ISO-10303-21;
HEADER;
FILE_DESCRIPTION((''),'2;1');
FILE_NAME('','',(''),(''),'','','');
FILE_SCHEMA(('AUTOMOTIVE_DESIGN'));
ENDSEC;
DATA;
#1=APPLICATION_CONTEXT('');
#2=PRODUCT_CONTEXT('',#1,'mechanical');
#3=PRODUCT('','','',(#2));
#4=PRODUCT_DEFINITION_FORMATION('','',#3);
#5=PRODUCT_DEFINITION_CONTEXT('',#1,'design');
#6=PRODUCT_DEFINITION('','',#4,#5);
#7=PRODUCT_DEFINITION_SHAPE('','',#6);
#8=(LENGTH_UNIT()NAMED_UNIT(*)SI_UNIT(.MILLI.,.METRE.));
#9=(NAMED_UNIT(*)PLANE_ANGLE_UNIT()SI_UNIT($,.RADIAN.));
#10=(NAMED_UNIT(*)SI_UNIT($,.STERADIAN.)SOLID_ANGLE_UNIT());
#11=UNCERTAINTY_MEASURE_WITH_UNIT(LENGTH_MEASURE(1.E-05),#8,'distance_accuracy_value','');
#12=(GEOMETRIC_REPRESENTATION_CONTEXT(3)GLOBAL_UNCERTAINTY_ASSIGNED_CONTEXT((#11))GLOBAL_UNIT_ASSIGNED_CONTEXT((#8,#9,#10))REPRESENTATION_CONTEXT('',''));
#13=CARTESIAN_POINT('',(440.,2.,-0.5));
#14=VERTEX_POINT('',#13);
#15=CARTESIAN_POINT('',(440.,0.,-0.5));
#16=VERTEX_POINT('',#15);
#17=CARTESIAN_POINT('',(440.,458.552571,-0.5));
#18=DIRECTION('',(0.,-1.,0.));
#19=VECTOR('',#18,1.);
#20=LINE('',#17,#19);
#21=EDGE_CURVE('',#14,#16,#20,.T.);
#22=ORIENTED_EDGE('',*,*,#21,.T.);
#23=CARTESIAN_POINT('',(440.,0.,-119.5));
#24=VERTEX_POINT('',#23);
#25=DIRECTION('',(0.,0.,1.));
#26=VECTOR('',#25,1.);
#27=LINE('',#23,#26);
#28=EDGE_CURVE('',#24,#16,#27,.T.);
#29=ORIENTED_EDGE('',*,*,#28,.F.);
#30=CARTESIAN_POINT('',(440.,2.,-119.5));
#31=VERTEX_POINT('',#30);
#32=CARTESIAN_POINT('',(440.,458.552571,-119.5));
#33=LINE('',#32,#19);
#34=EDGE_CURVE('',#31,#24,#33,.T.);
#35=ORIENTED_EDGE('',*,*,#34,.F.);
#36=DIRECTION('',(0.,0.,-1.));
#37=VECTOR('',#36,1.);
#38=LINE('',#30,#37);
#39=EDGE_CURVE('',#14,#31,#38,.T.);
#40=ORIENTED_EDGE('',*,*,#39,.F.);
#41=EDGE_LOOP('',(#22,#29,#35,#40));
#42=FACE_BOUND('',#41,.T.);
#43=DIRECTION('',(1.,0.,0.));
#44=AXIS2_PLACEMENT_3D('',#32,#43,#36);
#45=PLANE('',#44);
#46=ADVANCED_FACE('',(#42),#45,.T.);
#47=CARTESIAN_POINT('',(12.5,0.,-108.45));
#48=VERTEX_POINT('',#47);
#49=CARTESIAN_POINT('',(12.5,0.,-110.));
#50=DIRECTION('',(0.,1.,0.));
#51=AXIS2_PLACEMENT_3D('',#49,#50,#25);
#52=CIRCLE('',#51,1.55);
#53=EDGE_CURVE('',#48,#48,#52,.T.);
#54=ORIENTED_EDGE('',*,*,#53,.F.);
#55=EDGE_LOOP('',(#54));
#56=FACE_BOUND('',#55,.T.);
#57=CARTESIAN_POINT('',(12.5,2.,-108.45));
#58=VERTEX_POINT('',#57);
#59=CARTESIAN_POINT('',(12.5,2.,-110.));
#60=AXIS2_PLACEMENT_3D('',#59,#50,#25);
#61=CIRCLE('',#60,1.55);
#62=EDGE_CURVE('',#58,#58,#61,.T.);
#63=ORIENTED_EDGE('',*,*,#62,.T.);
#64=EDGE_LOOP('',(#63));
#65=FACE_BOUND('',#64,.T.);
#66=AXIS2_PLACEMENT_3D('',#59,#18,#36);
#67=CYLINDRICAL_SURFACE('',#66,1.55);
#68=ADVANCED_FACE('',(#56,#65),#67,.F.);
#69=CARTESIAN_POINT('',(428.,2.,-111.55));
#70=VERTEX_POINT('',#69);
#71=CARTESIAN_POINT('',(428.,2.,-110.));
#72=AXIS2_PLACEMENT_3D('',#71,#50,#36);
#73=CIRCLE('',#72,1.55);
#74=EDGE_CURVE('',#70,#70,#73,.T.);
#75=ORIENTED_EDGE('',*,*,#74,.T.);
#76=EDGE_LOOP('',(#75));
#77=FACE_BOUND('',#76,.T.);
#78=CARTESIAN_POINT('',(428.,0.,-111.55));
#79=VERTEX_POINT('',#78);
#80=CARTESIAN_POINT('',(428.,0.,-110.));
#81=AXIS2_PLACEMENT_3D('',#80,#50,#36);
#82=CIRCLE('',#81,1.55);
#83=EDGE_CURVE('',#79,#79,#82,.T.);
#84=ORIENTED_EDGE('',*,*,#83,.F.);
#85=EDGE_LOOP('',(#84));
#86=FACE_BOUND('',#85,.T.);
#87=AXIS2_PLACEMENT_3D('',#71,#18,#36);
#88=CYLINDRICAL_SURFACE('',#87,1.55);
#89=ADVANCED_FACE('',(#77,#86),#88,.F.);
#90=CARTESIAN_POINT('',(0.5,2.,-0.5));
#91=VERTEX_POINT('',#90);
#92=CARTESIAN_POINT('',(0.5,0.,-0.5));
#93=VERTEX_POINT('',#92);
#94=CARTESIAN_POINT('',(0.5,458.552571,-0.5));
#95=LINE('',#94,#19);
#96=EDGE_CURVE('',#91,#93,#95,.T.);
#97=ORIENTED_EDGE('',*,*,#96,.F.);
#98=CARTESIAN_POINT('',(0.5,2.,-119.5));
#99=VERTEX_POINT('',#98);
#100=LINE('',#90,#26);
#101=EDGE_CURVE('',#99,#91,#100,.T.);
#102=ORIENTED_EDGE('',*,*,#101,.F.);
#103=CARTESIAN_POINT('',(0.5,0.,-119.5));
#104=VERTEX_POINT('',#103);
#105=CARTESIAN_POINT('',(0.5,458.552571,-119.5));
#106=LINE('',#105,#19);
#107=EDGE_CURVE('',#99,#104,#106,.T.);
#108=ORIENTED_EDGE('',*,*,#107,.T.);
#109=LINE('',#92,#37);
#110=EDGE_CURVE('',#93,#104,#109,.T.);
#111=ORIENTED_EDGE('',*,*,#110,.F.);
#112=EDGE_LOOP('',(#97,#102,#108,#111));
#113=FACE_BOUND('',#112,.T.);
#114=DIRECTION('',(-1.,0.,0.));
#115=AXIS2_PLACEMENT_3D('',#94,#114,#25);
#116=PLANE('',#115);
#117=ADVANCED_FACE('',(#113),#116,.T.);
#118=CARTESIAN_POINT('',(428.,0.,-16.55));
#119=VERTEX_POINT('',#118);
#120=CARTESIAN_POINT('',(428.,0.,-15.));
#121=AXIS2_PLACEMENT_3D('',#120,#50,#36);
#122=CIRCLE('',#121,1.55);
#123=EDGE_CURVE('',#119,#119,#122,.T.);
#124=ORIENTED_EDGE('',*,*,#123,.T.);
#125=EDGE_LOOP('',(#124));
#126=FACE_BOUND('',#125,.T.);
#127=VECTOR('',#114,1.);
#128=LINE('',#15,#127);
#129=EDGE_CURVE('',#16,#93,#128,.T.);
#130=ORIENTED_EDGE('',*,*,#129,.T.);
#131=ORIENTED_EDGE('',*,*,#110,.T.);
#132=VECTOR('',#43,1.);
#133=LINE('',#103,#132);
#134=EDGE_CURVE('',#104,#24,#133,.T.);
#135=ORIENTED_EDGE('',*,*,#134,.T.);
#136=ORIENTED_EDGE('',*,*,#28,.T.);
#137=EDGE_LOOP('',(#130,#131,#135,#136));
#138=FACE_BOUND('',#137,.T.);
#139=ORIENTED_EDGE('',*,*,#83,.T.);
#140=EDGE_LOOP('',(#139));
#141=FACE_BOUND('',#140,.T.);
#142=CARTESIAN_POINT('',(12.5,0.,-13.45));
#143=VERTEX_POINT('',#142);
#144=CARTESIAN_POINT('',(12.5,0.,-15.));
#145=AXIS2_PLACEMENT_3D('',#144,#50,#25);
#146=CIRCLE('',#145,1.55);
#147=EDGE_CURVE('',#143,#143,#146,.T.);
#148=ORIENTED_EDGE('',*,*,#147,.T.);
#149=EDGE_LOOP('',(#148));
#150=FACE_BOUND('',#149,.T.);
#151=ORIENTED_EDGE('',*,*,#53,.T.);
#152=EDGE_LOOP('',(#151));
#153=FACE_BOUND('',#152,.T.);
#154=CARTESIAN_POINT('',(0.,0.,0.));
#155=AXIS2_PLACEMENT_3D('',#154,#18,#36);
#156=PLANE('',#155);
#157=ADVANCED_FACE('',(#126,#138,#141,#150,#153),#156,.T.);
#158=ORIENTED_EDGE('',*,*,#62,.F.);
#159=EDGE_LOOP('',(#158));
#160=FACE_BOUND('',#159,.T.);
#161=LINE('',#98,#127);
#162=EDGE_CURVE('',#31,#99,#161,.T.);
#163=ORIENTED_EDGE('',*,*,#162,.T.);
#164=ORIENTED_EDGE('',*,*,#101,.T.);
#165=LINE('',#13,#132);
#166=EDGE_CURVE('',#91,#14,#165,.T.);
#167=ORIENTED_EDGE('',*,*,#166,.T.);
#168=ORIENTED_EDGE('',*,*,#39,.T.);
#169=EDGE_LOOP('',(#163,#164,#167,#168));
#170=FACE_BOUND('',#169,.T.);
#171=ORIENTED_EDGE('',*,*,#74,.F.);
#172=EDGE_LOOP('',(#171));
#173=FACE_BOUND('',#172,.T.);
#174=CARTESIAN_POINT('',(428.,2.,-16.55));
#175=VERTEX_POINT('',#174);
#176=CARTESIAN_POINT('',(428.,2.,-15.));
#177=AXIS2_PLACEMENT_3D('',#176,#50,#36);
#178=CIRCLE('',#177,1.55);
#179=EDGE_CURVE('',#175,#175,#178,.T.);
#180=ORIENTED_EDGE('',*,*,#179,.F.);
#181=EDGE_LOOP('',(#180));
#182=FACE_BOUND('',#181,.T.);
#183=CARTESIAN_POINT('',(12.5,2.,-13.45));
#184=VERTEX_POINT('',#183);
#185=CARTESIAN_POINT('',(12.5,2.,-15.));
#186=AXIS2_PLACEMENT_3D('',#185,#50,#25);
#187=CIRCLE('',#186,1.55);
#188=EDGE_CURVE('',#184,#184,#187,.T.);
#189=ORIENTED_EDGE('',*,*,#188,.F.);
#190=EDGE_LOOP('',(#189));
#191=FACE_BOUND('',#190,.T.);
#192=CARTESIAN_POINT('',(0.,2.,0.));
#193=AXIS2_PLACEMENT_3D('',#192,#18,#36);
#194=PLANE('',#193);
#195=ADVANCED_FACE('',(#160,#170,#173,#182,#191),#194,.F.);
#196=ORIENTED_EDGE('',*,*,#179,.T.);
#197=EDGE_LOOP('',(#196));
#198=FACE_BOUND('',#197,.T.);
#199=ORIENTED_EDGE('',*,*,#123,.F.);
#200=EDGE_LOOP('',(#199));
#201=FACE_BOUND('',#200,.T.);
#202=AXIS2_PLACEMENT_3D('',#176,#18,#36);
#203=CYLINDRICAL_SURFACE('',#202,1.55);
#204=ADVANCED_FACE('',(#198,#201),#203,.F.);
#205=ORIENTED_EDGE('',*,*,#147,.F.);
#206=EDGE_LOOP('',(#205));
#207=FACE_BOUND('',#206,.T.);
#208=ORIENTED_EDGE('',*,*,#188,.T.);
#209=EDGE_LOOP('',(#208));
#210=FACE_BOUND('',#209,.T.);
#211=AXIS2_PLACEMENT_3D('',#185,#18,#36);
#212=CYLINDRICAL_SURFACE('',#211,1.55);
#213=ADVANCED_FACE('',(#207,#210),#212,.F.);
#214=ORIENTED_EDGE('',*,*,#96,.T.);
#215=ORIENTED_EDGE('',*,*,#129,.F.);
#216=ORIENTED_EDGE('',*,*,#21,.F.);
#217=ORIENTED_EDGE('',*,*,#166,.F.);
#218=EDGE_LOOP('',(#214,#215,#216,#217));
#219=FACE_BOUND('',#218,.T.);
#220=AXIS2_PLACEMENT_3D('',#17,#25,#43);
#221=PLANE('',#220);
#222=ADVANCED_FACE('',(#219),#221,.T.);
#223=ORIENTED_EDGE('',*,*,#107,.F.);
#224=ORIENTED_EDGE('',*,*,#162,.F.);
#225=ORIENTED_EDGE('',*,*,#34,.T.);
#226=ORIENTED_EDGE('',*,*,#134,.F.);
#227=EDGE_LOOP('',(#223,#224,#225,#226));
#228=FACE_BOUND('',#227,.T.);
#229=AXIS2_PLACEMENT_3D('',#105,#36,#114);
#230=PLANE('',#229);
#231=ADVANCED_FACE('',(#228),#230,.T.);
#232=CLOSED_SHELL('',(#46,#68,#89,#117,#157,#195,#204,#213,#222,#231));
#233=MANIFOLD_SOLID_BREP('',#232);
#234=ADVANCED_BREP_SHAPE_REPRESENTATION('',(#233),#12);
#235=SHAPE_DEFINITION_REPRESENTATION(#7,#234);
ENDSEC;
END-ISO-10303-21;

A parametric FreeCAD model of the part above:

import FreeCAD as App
import Part
import Sketcher
Q = App.Units.Quantity


def add_polygon(sketch, points):
    """Adds a closed chain of lines whose ends are joined by coincident constraints."""
    first, n = sketch.GeometryCount, len(points)
    for a, b in zip(points, points[1:] + points[:1]):
        sketch.addGeometry(Part.LineSegment(App.Vector(*a, 0), App.Vector(*b, 0)), False)
    for i in range(n):
        sketch.addConstraint(Sketcher.Constraint("Coincident", first + i, 2, first + (i + 1) % n, 1))

doc = App.newDocument("Part")
body = doc.addObject("PartDesign::Body", "Body")

# Sketch on XZ plane
sketch1 = body.newObject("Sketcher::SketchObject", "Sketch")
sketch1.AttachmentSupport = (doc.getObject("XZ_Plane"), [""])
sketch1.MapMode = "FlatFace"
add_polygon(sketch1, [(0, -120), (0, 0), (440.5, 0), (440.5, -120)])  # lines 0-3
sketch1.addGeometry(Part.Circle(App.Vector(12.5, -15, 0), App.Vector(0, 0, 1), 1.55), False)  # 4
sketch1.addGeometry(Part.Circle(App.Vector(428, -15, 0), App.Vector(0, 0, 1), 1.55), False)  # 5
sketch1.addGeometry(Part.Circle(App.Vector(12.5, -110, 0), App.Vector(0, 0, 1), 1.55), False)  # 6
sketch1.addGeometry(Part.Circle(App.Vector(428, -110, 0), App.Vector(0, 0, 1), 1.55), False)  # 7
sketch1.addConstraint([
    Sketcher.Constraint("Vertical", 0),
    Sketcher.Constraint("Horizontal", 1),
    Sketcher.Constraint("Vertical", 2),
    Sketcher.Constraint("Horizontal", 3),
    Sketcher.Constraint("Coincident", 0, 2, -1, 1),
    Sketcher.Constraint("Equal", 4, 5),
    Sketcher.Constraint("Equal", 5, 6),
    Sketcher.Constraint("Equal", 6, 7),
    Sketcher.Constraint("Horizontal", 4, 3, 5, 3),
    Sketcher.Constraint("Horizontal", 6, 3, 7, 3),
    Sketcher.Constraint("Vertical", 4, 3, 6, 3),
    Sketcher.Constraint("Vertical", 5, 3, 7, 3),
    Sketcher.Constraint("Diameter", 4, Q("3.1 mm")),
    Sketcher.Constraint("DistanceY", 0, 1, 0, 2, Q("120 mm")),
    Sketcher.Constraint("DistanceX", 1, 1, 1, 2, Q("440.5 mm")),
    Sketcher.Constraint("DistanceY", 4, 3, -1, 1, Q("15 mm")),
    Sketcher.Constraint("DistanceX", -1, 1, 5, 3, Q("428 mm")),
    Sketcher.Constraint("DistanceY", 6, 3, -1, 1, Q("110 mm")),
    Sketcher.Constraint("DistanceX", 4, 3, 1, 2, Q("428 mm")),
])
pad1 = body.newObject("PartDesign::Pad", "Pad")
pad1.Profile = sketch1
pad1.Length = 2
pad1.Reversed = True

# Sketch on XZ plane
sketch2 = body.newObject("Sketcher::SketchObject", "Sketch001")
sketch2.AttachmentSupport = (doc.getObject("XZ_Plane"), [""])
sketch2.MapMode = "FlatFace"
add_polygon(sketch2, [(0, 0), (0, -120), (440.5, -120), (440.5, 0)])  # lines 0-3
add_polygon(sketch2, [(440, -119.5), (0.5, -119.5), (0.5, -0.5), (440, -0.5)])  # lines 4-7
sketch2.addConstraint([
    Sketcher.Constraint("Vertical", 0),
    Sketcher.Constraint("Horizontal", 1),
    Sketcher.Constraint("Vertical", 2),
    Sketcher.Constraint("Horizontal", 3),
    Sketcher.Constraint("Horizontal", 4),
    Sketcher.Constraint("Vertical", 5),
    Sketcher.Constraint("Horizontal", 6),
    Sketcher.Constraint("Vertical", 7),
    Sketcher.Constraint("Coincident", 3, 2, -1, 1),
    Sketcher.Constraint("DistanceY", 0, 2, 0, 1, Q("120 mm")),
    Sketcher.Constraint("DistanceY", 5, 1, 5, 2, Q("119 mm")),
    Sketcher.Constraint("DistanceX", 1, 1, 1, 2, Q("440.5 mm")),
    Sketcher.Constraint("DistanceX", 4, 2, 4, 1, Q("439.5 mm")),
    Sketcher.Constraint("DistanceX", -1, 1, 6, 2, Q("440 mm")),
    Sketcher.Constraint("DistanceY", 4, 2, -1, 1, Q("119.5 mm")),
])
pocket1 = body.newObject("PartDesign::Pocket", "Pocket")
pocket1.Profile = sketch2
pocket1.Length = 2

doc.recompute()
